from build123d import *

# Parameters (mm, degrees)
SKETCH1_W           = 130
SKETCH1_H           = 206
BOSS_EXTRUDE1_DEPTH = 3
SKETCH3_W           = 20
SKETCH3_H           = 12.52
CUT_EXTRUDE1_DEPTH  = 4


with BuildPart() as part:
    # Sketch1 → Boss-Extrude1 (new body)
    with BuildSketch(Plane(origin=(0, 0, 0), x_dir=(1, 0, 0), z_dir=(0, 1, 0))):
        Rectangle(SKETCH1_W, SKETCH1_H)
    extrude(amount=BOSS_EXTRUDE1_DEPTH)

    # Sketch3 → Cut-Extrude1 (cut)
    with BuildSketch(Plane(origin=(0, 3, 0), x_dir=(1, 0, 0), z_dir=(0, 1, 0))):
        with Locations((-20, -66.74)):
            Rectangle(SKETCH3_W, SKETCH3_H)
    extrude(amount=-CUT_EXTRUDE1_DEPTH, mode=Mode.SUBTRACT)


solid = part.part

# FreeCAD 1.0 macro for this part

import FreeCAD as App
import Part
import Sketcher
from FreeCAD import Vector


def add_polygon(sketch, points):
    """Adds a closed chain of lines whose ends are joined by coincident constraints."""
    first, n = sketch.GeometryCount, len(points)
    for a, b in zip(points, points[1:] + points[:1]):
        sketch.addGeometry(Part.LineSegment(App.Vector(*a, 0), App.Vector(*b, 0)), False)
    for i in range(n):
        sketch.addConstraint(Sketcher.Constraint("Coincident", first + i, 2, first + (i + 1) % n, 1))

doc = App.newDocument("Part")
body = doc.addObject("PartDesign::Body", "Body")

# Sketch on XZ plane
sketch1 = body.newObject("Sketcher::SketchObject", "Sketch")
sketch1.AttachmentSupport = (doc.getObject("XZ_Plane"), [""])
sketch1.MapMode = "FlatFace"
add_polygon(sketch1, [(-65, -103), (-65, 103), (65, 103), (65, -103)])  # lines 0-3
sketch1.addConstraint(Sketcher.Constraint("Vertical", 0))
sketch1.addConstraint(Sketcher.Constraint("Horizontal", 1))
sketch1.addConstraint(Sketcher.Constraint("Vertical", 2))
sketch1.addConstraint(Sketcher.Constraint("Horizontal", 3))
sketch1.addConstraint(Sketcher.Constraint("Symmetric", 0, 2, 2, 2, -1, 1))
sketch1.addConstraint(Sketcher.Constraint("DistanceX", 1, 1, 1, 2, 130.0))
sketch1.addConstraint(Sketcher.Constraint("DistanceY", 0, 1, 0, 2, 206.0))
pad1 = body.newObject("PartDesign::Pad", "Pad")
pad1.Profile = sketch1
pad1.Length = 3
pad1.Reversed = True

# Sketch on XZ plane
sketch2 = body.newObject("Sketcher::SketchObject", "Sketch001")
sketch2.AttachmentSupport = (doc.getObject("XZ_Plane"), [""])
sketch2.MapMode = "FlatFace"
sketch2.AttachmentOffset = App.Placement(Vector(0, 0, -3), App.Rotation())
add_polygon(sketch2, [(-30, 60), (-30, 73), (-10, 73), (-10, 60)])  # lines 0-3
sketch2.addConstraint(Sketcher.Constraint("Vertical", 0))
sketch2.addConstraint(Sketcher.Constraint("Horizontal", 1))
sketch2.addConstraint(Sketcher.Constraint("Vertical", 2))
sketch2.addConstraint(Sketcher.Constraint("Horizontal", 3))
sketch2.addConstraint(Sketcher.Constraint("DistanceX", 1, 1, 1, 2, 20.0))
sketch2.addConstraint(Sketcher.Constraint("DistanceX", 0, 2, -1, 1, 30.0))
sketch2.addConstraint(Sketcher.Constraint("DistanceY", -1, 1, 0, 2, 73.0))
sketch2.addConstraint(Sketcher.Constraint("DistanceY", 0, 1, 0, 2, 12.52))
pocket1 = body.newObject("PartDesign::Pocket", "Pocket")
pocket1.Profile = sketch2
pocket1.Length = 4
pocket1.Reversed = True

doc.recompute()
